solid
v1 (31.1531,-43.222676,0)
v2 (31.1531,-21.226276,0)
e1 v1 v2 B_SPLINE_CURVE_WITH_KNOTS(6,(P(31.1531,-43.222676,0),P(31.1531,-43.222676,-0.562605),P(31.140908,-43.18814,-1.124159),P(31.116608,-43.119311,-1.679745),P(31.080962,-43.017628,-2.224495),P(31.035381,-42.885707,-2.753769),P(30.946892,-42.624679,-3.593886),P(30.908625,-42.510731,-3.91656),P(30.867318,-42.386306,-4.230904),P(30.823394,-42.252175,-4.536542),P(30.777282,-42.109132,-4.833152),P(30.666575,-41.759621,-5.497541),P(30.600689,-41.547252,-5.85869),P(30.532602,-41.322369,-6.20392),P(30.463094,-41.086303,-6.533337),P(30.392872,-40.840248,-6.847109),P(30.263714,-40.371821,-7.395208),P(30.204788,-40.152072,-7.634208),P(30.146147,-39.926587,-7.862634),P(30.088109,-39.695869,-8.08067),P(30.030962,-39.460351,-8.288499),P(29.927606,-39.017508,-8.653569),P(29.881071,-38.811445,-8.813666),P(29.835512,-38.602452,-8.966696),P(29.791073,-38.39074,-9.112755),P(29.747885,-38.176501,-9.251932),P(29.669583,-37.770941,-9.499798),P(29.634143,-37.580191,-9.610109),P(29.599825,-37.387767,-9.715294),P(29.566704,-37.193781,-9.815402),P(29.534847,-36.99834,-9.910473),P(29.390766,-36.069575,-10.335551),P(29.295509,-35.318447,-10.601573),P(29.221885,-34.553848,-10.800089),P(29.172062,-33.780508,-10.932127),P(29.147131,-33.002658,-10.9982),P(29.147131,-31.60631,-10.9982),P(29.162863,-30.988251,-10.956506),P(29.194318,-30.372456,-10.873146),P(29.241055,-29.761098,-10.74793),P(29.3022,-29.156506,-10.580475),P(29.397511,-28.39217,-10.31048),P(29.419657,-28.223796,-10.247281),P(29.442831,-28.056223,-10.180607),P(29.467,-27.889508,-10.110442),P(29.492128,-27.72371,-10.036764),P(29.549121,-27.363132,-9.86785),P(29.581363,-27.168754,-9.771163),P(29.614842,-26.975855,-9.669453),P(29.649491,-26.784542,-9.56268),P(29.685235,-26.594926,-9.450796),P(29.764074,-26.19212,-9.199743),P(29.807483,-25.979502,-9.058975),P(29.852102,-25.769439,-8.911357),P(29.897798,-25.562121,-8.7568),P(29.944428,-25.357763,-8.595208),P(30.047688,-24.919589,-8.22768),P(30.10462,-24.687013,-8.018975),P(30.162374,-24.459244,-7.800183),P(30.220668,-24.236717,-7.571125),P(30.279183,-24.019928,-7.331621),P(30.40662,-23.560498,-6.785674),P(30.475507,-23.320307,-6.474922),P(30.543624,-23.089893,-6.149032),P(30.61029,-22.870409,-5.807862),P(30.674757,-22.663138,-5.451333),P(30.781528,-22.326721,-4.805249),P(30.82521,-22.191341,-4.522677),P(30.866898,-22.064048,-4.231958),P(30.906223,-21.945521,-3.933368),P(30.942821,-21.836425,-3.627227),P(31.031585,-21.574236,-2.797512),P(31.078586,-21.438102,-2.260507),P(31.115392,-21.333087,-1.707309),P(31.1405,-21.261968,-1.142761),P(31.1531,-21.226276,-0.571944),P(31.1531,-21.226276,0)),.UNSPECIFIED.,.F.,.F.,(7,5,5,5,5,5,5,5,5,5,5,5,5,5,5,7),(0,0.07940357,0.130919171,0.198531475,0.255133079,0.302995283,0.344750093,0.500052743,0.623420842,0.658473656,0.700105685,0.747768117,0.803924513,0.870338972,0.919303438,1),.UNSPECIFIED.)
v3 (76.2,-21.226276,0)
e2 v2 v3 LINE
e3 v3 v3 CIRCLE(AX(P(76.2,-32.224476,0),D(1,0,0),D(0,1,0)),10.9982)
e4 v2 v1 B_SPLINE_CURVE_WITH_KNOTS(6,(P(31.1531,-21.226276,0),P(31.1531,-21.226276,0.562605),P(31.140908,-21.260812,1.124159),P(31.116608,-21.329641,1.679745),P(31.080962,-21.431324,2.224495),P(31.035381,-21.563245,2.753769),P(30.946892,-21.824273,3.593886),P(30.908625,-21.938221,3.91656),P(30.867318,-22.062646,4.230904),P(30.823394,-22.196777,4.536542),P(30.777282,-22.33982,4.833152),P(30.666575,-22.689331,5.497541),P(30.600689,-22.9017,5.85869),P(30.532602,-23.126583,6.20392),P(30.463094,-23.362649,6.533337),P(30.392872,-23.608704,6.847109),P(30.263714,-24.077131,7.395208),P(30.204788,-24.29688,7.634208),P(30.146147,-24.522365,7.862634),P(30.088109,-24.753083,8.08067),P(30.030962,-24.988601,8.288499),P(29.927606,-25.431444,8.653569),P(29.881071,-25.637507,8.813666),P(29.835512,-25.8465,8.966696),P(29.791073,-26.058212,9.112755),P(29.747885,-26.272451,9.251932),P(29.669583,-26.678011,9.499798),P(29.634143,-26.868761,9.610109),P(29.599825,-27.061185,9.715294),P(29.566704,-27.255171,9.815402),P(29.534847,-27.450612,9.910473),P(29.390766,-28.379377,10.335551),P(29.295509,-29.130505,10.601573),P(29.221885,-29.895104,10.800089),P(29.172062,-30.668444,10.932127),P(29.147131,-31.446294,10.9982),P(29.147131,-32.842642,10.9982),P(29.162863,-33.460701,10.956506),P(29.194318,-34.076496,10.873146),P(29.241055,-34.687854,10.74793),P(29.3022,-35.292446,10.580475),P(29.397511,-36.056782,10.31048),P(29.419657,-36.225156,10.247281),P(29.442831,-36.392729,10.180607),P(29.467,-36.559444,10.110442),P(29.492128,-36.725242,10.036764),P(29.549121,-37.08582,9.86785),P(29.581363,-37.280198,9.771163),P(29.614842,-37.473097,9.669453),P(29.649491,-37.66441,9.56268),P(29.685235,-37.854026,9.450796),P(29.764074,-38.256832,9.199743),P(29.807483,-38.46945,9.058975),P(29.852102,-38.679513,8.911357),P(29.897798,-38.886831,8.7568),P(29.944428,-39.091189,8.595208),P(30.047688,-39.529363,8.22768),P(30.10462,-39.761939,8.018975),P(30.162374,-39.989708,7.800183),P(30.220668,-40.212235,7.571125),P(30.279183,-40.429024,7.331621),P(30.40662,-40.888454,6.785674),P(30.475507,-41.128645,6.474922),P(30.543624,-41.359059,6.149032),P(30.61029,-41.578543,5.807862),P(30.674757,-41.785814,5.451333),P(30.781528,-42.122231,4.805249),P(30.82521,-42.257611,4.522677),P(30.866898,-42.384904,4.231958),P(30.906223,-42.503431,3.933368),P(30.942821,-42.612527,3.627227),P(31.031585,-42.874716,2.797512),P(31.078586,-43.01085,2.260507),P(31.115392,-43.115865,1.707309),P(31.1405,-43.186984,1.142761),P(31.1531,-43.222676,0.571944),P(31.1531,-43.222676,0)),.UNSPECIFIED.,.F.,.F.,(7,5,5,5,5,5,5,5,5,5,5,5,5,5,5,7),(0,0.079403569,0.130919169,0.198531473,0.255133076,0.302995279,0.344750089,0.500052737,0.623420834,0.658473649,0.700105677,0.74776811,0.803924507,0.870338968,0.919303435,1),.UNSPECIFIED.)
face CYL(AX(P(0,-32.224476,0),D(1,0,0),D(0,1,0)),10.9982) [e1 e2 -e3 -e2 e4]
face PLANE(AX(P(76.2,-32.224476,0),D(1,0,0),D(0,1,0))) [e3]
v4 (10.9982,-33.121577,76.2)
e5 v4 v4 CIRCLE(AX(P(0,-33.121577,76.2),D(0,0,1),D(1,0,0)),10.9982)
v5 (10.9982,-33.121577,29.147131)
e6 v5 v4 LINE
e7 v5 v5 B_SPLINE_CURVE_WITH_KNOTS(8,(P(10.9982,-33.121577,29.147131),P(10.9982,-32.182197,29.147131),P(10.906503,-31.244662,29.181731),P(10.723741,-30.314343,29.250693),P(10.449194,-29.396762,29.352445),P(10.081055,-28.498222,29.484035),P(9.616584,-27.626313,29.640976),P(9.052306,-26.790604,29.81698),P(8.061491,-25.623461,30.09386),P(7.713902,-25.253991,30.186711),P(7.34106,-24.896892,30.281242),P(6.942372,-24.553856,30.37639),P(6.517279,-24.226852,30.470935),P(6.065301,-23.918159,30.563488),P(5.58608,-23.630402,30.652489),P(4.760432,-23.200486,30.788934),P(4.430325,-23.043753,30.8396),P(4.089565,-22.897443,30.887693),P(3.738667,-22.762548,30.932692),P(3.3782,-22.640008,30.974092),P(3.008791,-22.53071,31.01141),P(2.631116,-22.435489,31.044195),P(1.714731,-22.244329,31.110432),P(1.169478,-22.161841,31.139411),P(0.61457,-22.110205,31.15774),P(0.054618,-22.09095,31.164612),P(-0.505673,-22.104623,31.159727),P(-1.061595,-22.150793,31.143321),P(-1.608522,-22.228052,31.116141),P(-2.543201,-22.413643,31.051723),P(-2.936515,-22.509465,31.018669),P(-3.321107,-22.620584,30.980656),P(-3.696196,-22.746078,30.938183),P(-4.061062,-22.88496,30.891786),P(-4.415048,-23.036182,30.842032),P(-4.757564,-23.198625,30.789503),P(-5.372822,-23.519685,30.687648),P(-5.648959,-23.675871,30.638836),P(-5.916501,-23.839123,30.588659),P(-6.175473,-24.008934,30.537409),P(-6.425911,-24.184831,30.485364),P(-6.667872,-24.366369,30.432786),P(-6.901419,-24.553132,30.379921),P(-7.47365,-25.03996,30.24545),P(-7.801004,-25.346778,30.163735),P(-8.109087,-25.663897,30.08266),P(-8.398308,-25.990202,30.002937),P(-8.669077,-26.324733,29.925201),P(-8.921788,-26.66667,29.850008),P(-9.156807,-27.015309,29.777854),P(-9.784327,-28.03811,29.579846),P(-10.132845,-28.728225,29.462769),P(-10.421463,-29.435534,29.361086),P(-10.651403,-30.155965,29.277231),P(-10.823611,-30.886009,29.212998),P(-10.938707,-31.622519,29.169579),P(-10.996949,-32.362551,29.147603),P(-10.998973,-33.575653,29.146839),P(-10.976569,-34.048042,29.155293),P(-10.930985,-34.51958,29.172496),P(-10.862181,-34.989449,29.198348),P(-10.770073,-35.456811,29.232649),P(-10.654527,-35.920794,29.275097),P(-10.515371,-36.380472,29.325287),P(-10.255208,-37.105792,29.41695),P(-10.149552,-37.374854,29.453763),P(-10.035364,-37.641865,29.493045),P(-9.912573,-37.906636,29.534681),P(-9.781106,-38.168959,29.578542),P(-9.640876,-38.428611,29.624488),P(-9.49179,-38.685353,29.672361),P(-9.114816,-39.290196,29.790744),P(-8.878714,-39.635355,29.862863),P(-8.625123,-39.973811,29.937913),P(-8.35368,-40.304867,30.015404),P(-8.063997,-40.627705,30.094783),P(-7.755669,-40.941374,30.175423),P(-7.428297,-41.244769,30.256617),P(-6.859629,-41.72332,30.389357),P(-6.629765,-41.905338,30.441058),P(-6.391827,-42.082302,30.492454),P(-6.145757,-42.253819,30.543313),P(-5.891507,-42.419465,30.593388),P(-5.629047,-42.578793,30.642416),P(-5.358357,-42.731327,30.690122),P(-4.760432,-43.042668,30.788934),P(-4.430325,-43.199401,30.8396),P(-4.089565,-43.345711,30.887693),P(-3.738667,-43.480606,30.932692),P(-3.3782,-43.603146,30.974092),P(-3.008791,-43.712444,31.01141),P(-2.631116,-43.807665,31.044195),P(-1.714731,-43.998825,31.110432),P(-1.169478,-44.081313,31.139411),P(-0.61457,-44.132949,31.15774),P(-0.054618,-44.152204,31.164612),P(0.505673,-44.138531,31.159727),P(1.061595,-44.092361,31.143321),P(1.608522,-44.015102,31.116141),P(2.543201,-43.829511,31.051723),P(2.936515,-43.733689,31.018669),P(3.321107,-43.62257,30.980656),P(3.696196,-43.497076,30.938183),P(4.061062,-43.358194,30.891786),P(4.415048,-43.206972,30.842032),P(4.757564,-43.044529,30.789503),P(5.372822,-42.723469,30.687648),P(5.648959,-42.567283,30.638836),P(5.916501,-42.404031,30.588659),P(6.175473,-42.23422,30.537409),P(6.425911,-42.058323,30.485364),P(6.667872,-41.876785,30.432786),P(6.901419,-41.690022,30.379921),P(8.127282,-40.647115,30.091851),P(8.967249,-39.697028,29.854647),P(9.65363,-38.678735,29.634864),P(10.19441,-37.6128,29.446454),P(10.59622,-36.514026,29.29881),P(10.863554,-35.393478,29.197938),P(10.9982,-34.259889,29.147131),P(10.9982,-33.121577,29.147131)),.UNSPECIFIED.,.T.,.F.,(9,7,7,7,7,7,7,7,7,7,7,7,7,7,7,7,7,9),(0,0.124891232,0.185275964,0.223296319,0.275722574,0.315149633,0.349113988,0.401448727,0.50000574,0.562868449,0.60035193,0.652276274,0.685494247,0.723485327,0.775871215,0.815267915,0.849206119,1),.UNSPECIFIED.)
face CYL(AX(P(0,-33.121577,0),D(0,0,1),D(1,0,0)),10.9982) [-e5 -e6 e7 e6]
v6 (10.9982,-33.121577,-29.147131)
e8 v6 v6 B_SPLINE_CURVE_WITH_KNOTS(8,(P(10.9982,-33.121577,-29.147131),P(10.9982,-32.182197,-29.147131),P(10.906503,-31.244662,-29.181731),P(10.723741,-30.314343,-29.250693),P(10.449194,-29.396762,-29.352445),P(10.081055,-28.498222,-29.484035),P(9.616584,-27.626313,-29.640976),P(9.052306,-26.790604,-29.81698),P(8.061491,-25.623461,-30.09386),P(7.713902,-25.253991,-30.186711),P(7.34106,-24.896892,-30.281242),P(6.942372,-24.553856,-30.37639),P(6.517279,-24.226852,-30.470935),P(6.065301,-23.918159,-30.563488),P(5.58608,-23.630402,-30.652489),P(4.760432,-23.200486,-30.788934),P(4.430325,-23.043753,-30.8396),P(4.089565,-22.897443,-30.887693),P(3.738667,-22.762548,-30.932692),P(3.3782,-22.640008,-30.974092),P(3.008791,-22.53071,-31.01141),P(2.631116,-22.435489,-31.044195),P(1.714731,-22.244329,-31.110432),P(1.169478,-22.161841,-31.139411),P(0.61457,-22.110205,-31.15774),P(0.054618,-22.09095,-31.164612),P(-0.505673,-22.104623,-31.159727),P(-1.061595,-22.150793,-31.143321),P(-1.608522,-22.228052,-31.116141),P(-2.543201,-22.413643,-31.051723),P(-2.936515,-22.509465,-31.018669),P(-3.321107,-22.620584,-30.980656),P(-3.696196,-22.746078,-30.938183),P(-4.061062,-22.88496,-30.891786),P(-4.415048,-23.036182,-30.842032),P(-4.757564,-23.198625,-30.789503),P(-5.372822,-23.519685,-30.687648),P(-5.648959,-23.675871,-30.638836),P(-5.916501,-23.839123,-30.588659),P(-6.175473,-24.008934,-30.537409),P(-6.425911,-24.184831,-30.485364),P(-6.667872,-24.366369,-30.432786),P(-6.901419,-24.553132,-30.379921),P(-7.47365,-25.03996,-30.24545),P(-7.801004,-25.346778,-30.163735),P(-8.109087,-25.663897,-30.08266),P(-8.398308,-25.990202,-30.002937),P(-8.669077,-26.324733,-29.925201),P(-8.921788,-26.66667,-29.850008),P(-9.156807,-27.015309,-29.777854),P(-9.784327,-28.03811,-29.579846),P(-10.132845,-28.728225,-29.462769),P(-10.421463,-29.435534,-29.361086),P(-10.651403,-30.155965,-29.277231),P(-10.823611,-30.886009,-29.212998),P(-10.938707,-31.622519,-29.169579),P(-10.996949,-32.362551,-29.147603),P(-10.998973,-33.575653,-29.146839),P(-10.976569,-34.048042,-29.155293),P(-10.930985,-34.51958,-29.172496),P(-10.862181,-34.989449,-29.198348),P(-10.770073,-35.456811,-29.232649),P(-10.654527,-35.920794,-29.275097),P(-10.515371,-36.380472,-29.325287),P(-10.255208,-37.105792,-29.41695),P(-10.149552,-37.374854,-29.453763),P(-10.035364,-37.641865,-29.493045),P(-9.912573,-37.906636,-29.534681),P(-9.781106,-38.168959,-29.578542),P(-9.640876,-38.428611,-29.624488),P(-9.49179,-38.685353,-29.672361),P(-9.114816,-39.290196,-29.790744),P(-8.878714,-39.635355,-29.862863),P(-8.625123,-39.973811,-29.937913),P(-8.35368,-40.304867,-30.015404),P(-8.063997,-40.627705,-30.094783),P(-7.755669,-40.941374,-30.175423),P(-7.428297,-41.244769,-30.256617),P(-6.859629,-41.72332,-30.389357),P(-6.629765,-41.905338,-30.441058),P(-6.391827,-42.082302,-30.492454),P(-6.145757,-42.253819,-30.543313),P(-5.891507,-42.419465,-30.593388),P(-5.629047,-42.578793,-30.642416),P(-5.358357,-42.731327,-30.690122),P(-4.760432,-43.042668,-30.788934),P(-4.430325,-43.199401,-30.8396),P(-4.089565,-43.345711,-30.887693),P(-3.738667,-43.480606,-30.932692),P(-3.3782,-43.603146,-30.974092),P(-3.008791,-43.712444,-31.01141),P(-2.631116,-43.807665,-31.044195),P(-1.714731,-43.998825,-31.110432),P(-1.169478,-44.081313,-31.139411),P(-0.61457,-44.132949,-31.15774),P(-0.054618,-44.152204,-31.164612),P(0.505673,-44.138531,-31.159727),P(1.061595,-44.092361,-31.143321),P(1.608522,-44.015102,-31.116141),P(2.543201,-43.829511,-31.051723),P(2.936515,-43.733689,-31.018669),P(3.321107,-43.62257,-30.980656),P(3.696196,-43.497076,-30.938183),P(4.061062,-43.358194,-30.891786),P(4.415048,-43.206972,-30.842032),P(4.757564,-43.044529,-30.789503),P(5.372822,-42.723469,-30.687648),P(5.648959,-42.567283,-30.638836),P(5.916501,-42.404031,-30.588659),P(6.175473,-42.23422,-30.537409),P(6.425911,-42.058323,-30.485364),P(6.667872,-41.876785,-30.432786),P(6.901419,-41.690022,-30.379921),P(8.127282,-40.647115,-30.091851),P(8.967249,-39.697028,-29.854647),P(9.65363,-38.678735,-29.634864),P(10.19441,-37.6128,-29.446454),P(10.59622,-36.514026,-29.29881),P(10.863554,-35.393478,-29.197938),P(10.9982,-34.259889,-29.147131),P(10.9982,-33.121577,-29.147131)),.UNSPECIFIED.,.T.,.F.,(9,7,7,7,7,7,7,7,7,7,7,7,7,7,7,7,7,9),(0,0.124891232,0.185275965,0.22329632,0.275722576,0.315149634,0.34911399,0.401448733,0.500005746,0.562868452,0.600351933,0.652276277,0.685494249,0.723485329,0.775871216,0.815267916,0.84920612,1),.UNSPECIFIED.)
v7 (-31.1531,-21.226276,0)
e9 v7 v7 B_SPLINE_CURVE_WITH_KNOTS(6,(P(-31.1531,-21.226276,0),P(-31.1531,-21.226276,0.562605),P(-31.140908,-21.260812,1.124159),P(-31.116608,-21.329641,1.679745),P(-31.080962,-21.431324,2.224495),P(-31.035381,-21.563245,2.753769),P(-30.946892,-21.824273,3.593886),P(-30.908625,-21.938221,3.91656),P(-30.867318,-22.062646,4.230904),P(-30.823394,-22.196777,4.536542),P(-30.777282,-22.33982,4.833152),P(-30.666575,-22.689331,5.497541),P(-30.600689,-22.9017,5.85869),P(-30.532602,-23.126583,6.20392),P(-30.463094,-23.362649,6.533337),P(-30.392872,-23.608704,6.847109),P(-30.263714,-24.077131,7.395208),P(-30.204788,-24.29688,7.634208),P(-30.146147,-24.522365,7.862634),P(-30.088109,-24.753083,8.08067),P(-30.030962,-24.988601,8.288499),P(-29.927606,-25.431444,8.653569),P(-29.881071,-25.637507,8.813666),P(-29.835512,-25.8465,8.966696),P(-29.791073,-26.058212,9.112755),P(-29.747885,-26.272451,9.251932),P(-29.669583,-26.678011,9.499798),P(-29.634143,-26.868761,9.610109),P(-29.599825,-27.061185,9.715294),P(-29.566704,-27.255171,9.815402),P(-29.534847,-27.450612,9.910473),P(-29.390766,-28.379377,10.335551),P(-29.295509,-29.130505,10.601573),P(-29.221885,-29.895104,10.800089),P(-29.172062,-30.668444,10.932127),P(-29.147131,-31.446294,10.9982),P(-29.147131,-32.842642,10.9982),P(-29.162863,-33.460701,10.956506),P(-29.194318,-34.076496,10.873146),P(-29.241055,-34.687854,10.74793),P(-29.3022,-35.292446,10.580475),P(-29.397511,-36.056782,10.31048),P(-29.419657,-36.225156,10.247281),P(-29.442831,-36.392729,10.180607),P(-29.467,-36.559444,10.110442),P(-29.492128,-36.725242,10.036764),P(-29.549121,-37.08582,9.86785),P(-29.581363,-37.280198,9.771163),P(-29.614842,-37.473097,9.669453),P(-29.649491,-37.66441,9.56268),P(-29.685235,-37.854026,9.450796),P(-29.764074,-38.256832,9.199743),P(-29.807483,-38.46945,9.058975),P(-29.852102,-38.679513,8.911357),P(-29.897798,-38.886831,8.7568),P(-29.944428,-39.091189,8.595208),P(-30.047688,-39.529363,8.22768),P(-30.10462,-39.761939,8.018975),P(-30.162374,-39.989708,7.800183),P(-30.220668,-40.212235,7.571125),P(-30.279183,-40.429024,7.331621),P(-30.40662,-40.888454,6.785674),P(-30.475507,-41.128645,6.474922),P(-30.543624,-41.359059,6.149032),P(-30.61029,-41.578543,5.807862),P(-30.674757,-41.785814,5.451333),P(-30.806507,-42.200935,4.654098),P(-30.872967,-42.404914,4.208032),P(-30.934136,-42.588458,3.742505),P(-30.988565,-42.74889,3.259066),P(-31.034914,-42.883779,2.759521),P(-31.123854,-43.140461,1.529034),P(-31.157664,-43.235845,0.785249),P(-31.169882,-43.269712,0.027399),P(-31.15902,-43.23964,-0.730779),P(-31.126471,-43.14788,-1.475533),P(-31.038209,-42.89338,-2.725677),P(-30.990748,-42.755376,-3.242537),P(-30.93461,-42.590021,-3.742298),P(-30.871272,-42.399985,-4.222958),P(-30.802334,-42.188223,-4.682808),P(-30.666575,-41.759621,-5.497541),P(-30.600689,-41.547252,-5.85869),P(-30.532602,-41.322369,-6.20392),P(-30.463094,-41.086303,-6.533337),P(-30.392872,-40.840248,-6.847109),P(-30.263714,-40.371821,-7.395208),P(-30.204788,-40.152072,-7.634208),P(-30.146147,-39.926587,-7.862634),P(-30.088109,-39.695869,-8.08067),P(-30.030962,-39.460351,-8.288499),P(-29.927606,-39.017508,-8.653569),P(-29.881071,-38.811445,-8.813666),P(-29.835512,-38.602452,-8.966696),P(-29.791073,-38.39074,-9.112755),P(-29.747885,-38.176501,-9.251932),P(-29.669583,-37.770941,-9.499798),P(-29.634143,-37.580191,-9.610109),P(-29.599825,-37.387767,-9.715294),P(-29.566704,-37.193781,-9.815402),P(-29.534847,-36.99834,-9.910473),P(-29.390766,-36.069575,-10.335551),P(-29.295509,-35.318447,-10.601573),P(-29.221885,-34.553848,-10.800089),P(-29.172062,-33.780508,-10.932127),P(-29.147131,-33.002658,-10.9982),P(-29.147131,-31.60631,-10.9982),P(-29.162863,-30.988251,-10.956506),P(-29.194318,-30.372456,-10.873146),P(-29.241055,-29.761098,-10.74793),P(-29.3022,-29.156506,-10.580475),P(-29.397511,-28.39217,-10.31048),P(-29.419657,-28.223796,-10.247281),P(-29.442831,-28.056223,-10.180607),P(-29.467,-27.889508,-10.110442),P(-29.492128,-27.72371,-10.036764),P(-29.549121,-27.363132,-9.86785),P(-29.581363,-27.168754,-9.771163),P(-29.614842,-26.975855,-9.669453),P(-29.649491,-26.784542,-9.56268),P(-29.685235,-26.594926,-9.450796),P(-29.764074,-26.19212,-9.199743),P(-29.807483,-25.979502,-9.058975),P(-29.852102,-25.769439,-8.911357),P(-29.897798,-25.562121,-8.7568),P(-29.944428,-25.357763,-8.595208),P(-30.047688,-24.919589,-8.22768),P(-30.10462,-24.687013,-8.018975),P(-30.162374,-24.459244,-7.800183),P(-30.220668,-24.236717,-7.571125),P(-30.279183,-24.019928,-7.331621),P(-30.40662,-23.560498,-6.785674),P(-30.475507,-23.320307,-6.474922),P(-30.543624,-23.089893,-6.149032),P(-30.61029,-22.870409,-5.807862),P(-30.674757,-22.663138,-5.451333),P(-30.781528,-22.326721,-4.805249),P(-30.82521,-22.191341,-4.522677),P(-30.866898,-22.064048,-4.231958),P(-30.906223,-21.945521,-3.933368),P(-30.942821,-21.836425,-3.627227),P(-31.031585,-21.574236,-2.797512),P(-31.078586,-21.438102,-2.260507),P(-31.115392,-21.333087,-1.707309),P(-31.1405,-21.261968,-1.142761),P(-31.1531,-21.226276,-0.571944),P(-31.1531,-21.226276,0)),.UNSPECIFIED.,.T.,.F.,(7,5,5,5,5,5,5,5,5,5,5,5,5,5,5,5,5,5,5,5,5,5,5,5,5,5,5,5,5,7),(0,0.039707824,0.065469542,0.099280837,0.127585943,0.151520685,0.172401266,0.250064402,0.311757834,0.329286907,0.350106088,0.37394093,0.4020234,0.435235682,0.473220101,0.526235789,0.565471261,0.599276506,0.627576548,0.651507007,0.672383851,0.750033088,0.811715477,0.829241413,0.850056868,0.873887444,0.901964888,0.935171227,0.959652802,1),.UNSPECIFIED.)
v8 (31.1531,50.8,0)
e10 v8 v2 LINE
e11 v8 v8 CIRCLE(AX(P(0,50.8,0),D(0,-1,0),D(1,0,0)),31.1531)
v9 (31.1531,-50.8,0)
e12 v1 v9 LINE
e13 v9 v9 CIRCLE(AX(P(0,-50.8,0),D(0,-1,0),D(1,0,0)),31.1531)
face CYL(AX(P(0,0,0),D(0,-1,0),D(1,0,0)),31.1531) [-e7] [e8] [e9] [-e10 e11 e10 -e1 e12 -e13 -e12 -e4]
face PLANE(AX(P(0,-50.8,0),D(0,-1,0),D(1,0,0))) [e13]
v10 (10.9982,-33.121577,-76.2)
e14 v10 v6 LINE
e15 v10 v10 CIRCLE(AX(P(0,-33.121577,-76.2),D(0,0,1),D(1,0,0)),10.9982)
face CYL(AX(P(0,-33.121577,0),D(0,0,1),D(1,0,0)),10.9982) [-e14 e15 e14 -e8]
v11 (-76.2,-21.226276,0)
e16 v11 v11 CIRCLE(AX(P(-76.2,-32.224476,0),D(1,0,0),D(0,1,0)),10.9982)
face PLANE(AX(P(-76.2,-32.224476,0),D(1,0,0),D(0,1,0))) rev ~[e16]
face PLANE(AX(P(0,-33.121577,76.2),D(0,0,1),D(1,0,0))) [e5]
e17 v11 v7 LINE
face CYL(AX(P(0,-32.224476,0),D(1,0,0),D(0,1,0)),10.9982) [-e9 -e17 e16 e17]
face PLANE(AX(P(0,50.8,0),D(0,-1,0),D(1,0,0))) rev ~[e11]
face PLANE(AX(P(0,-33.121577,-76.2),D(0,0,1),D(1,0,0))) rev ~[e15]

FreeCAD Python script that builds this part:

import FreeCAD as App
import Part
import Sketcher
from FreeCAD import Vector
Q = App.Units.Quantity

doc = App.newDocument("Part")
body = doc.addObject("PartDesign::Body", "Body")

# Sketch on XZ plane
sketch1 = body.newObject("Sketcher::SketchObject", "Sketch")
sketch1.AttachmentSupport = (doc.getObject("XZ_Plane"), [""])
sketch1.MapMode = "FlatFace"
sketch1.addGeometry(Part.Circle(Vector(0, 0, 0), Vector(0, 0, 1), 31.1531), False)
sketch1.addConstraint(Sketcher.Constraint("Coincident", 0, 3, -1, 1))
sketch1.addConstraint(Sketcher.Constraint("Diameter", 0, Q("2.453 in")))
pad1 = body.newObject("PartDesign::Pad", "Pad")
pad1.Profile = sketch1
pad1.Length = Q("4 in")
pad1.Midplane = True

# Sketch on YZ plane
sketch2 = body.newObject("Sketcher::SketchObject", "Sketch001")
sketch2.AttachmentSupport = (doc.getObject("YZ_Plane"), [""])
sketch2.MapMode = "FlatFace"
sketch2.addGeometry(Part.Circle(Vector(-32.224476, 0, 0), Vector(0, 0, 1), 10.9982), False)
sketch2.addConstraint(Sketcher.Constraint("PointOnObject", 0, 3, -1))
sketch2.addConstraint(Sketcher.Constraint("Diameter", 0, Q("0.866 in")))
sketch2.addConstraint(Sketcher.Constraint("DistanceX", 0, 3, -1, 1, 32.224476))
pad2 = body.newObject("PartDesign::Pad", "Pad001")
pad2.Profile = sketch2
pad2.Length = Q("6 in")
pad2.Midplane = True

# Sketch on XY plane
sketch3 = body.newObject("Sketcher::SketchObject", "Sketch002")
sketch3.AttachmentSupport = (doc.getObject("XY_Plane"), [""])
sketch3.MapMode = "FlatFace"
sketch3.addGeometry(Part.Circle(Vector(0, -33.121577, 0), Vector(0, 0, 1), 10.9982), False)
sketch3.addConstraint(Sketcher.Constraint("PointOnObject", 0, 3, -2))
sketch3.addConstraint(Sketcher.Constraint("Diameter", 0, Q("0.866 in")))
sketch3.addConstraint(Sketcher.Constraint("DistanceY", 0, 3, -1, 1, 33.121577))
pad3 = body.newObject("PartDesign::Pad", "Pad002")
pad3.Profile = sketch3
pad3.Length = Q("6 in")
pad3.Midplane = True

doc.recompute()
